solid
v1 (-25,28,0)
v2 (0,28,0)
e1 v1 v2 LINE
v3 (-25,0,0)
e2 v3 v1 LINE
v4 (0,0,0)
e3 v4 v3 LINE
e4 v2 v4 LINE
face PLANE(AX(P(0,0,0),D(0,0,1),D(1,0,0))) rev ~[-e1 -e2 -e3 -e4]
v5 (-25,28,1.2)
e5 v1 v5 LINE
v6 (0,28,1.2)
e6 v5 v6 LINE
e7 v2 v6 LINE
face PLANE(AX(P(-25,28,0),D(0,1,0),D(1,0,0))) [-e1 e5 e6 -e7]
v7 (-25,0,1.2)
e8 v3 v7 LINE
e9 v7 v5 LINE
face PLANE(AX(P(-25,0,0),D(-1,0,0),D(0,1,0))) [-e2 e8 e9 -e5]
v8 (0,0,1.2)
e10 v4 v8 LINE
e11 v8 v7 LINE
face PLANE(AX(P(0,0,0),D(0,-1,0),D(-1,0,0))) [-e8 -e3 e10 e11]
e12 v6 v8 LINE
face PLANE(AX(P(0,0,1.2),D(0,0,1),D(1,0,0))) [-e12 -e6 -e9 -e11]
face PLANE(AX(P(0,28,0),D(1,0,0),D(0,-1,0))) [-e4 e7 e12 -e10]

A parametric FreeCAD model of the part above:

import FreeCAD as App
import Part
import Sketcher

V = App.Vector


def add_polygon(sketch, points):
    """Adds a closed chain of lines whose ends are joined by coincident constraints."""
    first, n = sketch.GeometryCount, len(points)
    for a, b in zip(points, points[1:] + points[:1]):
        sketch.addGeometry(Part.LineSegment(App.Vector(*a, 0), App.Vector(*b, 0)), False)
    for i in range(n):
        sketch.addConstraint(Sketcher.Constraint("Coincident", first + i, 2, first + (i + 1) % n, 1))

doc = App.newDocument("Part")
params = doc.addObject("Spreadsheet::Sheet", "Params")
for row, (alias, value) in enumerate([
    ("sketch1_width", "25 mm"),
    ("sketch1_height", "28 mm"),
    ("pad1_length", "1.2 mm"),
], start=1):
    params.set(f"A{row}", alias)
    params.set(f"B{row}", "=" + value)
    params.setAlias(f"B{row}", alias)

body = doc.addObject("PartDesign::Body", "Body")

# Sketch on XY plane
sketch1 = body.newObject("Sketcher::SketchObject", "Sketch")
sketch1.AttachmentSupport = (doc.getObject("XY_Plane"), [""])
sketch1.MapMode = "FlatFace"
add_polygon(sketch1, [(-25, 0), (0, 0), (0, 28), (-25, 28)])  # lines 0-3
sketch1.addConstraint([
    Sketcher.Constraint("Horizontal", 0),
    Sketcher.Constraint("Vertical", 1),
    Sketcher.Constraint("Horizontal", 2),
    Sketcher.Constraint("Vertical", 3),
    Sketcher.Constraint("Coincident", 0, 2, -1, 1),
    Sketcher.Constraint("DistanceX", 0, 1, 0, 2, 25.0),
    Sketcher.Constraint("DistanceY", 1, 1, 1, 2, 28.0),
])
sketch1.setExpression("Constraints[9]", "Params.sketch1_width")
sketch1.setExpression("Constraints[10]", "Params.sketch1_height")
pad1 = body.newObject("PartDesign::Pad", "Pad")
pad1.Profile = sketch1
pad1.setExpression("Length", "Params.pad1_length")

doc.recompute()
